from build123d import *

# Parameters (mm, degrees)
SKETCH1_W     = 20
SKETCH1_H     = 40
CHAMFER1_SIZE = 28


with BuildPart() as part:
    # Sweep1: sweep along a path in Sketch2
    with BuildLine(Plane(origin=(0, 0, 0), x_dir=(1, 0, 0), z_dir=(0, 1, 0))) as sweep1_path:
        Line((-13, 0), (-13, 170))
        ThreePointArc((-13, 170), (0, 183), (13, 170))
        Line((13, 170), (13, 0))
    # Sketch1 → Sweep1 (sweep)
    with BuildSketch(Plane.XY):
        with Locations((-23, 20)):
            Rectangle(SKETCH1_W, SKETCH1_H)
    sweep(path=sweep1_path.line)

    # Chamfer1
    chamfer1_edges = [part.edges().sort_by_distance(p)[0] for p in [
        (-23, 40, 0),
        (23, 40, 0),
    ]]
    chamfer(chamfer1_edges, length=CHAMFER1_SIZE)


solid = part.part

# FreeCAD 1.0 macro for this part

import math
import FreeCAD as App
import Part
import Sketcher

V = App.Vector


def edges_at(feature, points):
    """Names of the edges that pass closest to the given points."""
    edges = feature.Shape.Edges
    near = lambda p: min(range(len(edges)), key=lambda i: edges[i].distToShape(Part.Vertex(*p))[0])
    return sorted({f"Edge{near(p) + 1}" for p in points})

doc = App.newDocument("Part")
params = doc.addObject("Spreadsheet::Sheet", "Params")
for row, (alias, value) in enumerate([
    ("sketch1_width", "20 mm"),
    ("sketch1_height", "40 mm"),
    ("sketch2_radius", "13 mm"),
    ("sketch2_height", "170 mm"),
    ("chamfer_size", "28 mm"),
], start=1):
    params.set(f"A{row}", alias)
    params.set(f"B{row}", "=" + value)
    params.setAlias(f"B{row}", alias)

body = doc.addObject("PartDesign::Body", "Body")

# Sketch on XY plane
sketch1 = body.newObject("Sketcher::SketchObject", "Sketch")
sketch1.AttachmentSupport = (doc.getObject("XY_Plane"), [""])
sketch1.MapMode = "FlatFace"
sketch1.addGeometry([
    Part.LineSegment(V(-33, 40, 0), V(-33, 0, 0)),
    Part.LineSegment(V(-33, 0, 0), V(-13, 0, 0)),
    Part.LineSegment(V(-13, 0, 0), V(-13, 40, 0)),
    Part.LineSegment(V(-13, 40, 0), V(-33, 40, 0)),
], False)
sketch1.addConstraint([
    Sketcher.Constraint("Coincident", 0, 2, 1, 1),
    Sketcher.Constraint("Coincident", 1, 2, 2, 1),
    Sketcher.Constraint("Coincident", 2, 2, 3, 1),
    Sketcher.Constraint("Coincident", 3, 2, 0, 1),
    Sketcher.Constraint("Vertical", 0),
    Sketcher.Constraint("Horizontal", 1),
    Sketcher.Constraint("Vertical", 2),
    Sketcher.Constraint("Horizontal", 3),
    Sketcher.Constraint("PointOnObject", 0, 2, -1),
    Sketcher.Constraint("DistanceX", 1, 1, 1, 2, 20.0),
    Sketcher.Constraint("DistanceY", 0, 2, 0, 1, 40.0),
    Sketcher.Constraint("DistanceX", 0, 2, -1, 1, 33.0),
])
sketch1.setExpression("Constraints[9]", "Params.sketch1_width")
sketch1.setExpression("Constraints[10]", "Params.sketch1_height")

# Sketch on XZ plane
sketch2 = body.newObject("Sketcher::SketchObject", "Sketch001")
sketch2.AttachmentSupport = (doc.getObject("XZ_Plane"), [""])
sketch2.MapMode = "FlatFace"
sketch2.addGeometry([
    Part.LineSegment(V(-13, 0, 0), V(-13, -170, 0)),
    Part.ArcOfCircle(Part.Circle(V(0, -170, 0), V(0, 0, 1), 13), math.radians(180), math.radians(360)),
    Part.LineSegment(V(13, -170, 0), V(13, 0, 0)),
], False)
sketch2.addConstraint([
    Sketcher.Constraint("Tangent", 0, 2, 1, 1),
    Sketcher.Constraint("Tangent", 1, 2, 2, 1),
    Sketcher.Constraint("Vertical", 0),
    Sketcher.Constraint("Vertical", 2),
    Sketcher.Constraint("Symmetric", 0, 1, 2, 2, -1, 1),
    Sketcher.Constraint("PointOnObject", 0, 1, -1),
    Sketcher.Constraint("Radius", 1, 13.0),
    Sketcher.Constraint("DistanceY", 0, 2, 0, 1, 170.0),
])
sketch2.setExpression("Constraints[6]", "Params.sketch2_radius")
sketch2.setExpression("Constraints[7]", "Params.sketch2_height")
doc.recompute()

additivepipe = body.newObject("PartDesign::AdditivePipe", "AdditivePipe")
additivepipe.Profile = sketch1
additivepipe.Spine = (sketch2, ["Edge1", "Edge2", "Edge3"])
doc.recompute()

chamfer = body.newObject("PartDesign::Chamfer", "Chamfer")
chamfer.Base = (additivepipe, edges_at(additivepipe, [(-23, 40, 0), (23, 40, 0)]))
chamfer.setExpression("Size", "Params.chamfer_size")

doc.recompute()
